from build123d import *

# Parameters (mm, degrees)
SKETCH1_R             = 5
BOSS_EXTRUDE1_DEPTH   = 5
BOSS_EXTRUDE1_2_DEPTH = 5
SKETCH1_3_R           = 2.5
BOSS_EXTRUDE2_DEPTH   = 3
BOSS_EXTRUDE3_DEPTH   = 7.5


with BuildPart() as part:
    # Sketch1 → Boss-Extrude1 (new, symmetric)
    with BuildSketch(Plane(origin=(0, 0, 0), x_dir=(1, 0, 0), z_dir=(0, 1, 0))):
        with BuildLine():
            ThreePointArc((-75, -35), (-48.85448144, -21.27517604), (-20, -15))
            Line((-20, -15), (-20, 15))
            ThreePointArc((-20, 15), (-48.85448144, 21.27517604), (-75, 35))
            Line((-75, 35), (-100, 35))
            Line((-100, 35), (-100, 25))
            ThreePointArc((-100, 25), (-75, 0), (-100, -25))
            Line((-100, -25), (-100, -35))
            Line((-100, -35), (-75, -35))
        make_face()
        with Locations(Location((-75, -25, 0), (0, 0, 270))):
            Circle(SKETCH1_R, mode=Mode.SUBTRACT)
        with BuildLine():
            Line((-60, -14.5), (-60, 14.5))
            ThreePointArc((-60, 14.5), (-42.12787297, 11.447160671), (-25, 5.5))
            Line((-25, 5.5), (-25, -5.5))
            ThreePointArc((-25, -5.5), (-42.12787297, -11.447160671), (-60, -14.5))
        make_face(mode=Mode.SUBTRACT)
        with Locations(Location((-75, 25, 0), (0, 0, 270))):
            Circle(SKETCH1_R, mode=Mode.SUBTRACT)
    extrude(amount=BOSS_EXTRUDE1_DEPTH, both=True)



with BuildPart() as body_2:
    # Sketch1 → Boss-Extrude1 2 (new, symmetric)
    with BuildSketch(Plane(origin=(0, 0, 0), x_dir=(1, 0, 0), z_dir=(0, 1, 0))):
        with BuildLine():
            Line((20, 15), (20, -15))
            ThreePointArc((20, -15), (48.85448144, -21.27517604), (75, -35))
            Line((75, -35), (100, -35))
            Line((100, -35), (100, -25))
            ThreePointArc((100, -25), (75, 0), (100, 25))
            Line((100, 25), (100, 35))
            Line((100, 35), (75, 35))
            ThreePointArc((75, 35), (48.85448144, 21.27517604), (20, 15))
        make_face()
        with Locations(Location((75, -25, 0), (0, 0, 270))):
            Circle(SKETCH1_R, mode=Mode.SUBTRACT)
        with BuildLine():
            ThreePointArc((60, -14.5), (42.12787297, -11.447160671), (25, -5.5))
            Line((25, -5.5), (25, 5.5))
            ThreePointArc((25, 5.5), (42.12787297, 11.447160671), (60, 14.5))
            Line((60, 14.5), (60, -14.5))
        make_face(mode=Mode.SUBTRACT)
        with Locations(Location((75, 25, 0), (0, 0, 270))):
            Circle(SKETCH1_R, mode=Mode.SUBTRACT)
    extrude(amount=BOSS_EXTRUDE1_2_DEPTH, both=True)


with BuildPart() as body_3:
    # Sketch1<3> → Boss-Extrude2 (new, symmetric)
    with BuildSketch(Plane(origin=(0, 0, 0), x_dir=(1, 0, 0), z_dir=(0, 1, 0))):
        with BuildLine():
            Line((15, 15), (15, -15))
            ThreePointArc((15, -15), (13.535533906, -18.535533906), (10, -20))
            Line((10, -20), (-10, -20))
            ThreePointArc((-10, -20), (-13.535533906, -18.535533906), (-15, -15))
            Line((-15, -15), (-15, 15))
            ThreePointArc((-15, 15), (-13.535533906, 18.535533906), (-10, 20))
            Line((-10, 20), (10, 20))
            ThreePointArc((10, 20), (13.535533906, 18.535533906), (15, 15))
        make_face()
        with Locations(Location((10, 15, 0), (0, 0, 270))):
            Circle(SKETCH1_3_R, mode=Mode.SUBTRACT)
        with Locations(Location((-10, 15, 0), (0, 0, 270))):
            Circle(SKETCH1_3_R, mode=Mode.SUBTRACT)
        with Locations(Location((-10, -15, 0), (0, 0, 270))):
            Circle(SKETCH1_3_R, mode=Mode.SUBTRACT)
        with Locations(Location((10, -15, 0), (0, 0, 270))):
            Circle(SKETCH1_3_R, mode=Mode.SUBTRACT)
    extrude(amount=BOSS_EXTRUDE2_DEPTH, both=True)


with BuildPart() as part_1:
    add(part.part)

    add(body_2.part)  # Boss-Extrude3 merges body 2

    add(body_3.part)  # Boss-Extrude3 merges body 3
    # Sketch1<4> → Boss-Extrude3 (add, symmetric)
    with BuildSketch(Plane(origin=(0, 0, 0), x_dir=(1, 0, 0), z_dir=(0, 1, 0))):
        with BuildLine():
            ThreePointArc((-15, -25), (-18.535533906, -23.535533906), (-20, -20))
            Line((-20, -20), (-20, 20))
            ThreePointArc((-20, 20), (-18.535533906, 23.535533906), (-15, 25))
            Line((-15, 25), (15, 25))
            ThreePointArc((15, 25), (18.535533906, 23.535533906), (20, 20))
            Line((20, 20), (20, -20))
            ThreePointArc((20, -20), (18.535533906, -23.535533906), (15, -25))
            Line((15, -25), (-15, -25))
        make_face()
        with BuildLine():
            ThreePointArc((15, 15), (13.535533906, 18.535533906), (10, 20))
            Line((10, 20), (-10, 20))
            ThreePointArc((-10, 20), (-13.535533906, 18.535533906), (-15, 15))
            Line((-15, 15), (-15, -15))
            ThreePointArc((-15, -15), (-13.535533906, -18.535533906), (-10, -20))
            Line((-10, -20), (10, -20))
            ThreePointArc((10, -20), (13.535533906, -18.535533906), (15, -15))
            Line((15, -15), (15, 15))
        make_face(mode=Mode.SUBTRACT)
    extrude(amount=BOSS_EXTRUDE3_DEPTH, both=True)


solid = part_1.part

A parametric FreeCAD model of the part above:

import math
import FreeCAD as App
import Part
import Sketcher
from FreeCAD import Vector

doc = App.newDocument("Part")
params = doc.addObject("Spreadsheet::Sheet", "Params")
for row, (alias, value) in enumerate([
    ("sketch1_diameter", "10 mm"),
    ("sketch1_radius", "110 mm"),
    ("sketch1_radius2", "25 mm"),
    ("sketch1_width", "25 mm"),
    ("sketch1_height", "30 mm"),
    ("pad1_length", "10 mm"),
    ("sketch2_diameter", "10 mm"),
    ("sketch2_radius", "110 mm"),
    ("sketch2_radius2", "25 mm"),
    ("sketch2_width", "25 mm"),
    ("sketch2_height", "30 mm"),
    ("pad2_length", "10 mm"),
    ("sketch3_diameter", "5 mm"),
    ("sketch3_radius", "5 mm"),
    ("sketch3_width", "20 mm"),
    ("sketch3_height", "30 mm"),
    ("pad3_length", "6 mm"),
    ("sketch4_radius", "5 mm"),
    ("sketch4_width", "30 mm"),
    ("pad4_length", "15 mm"),
], start=1):
    params.set(f"A{row}", alias)
    params.set(f"B{row}", "=" + value)
    params.setAlias(f"B{row}", alias)

body = doc.addObject("PartDesign::Body", "Body")

sketch1 = doc.addObject("Sketcher::SketchObject", "Sketch")
body.addObject(sketch1)
sketch1.AttachmentSupport = (doc.XZ_Plane, [""])
sketch1.MapMode = "FlatFace"
sketch1.addGeometry([
    Part.ArcOfCircle(Part.Circle(Vector(-11.262744, 124.652453, 0), Vector(0, 0, 1), 110), math.radians(-125.410433), math.radians(-94.55578)),
    Part.LineSegment(Vector(-20, 15, 0), Vector(-20, -15, 0)),
    Part.ArcOfCircle(Part.Circle(Vector(-11.262744, -124.652453, 0), Vector(0, 0, 1), 110), math.radians(94.55578), math.radians(125.410433)),
    Part.LineSegment(Vector(-75, -35, 0), Vector(-100, -35, 0)),
    Part.LineSegment(Vector(-100, -35, 0), Vector(-100, -25, 0)),
    Part.ArcOfCircle(Part.Circle(Vector(-100, 0, 0), Vector(0, 0, 1), 25), math.radians(-90), math.radians(90)),
    Part.LineSegment(Vector(-100, 25, 0), Vector(-100, 35, 0)),
    Part.LineSegment(Vector(-100, 35, 0), Vector(-75, 35, 0)),
    Part.Circle(Vector(-75, 25, 0), Vector(0, 0, 1), 5),
    Part.ArcOfCircle(Part.Circle(Vector(-69.522387, -95.087062, 0), Vector(0, 0, 1), 110), math.radians(66.124602), math.radians(85.033851)),
    Part.LineSegment(Vector(-60, 14.5, 0), Vector(-60, -14.5, 0)),
    Part.ArcOfCircle(Part.Circle(Vector(-69.522387, 95.087062, 0), Vector(0, 0, 1), 110), math.radians(-85.033851), math.radians(-66.124602)),
    Part.LineSegment(Vector(-25, -5.5, 0), Vector(-25, 5.5, 0)),
    Part.Circle(Vector(-75, -25, 0), Vector(0, 0, 1), 5),
], False)
sketch1.addConstraint([
    Sketcher.Constraint("Coincident", 0, 2, 1, 1),
    Sketcher.Constraint("Coincident", 1, 2, 2, 1),
    Sketcher.Constraint("Coincident", 2, 2, 3, 1),
    Sketcher.Constraint("Coincident", 3, 2, 4, 1),
    Sketcher.Constraint("Coincident", 4, 2, 5, 1),
    Sketcher.Constraint("Coincident", 5, 2, 6, 1),
    Sketcher.Constraint("Coincident", 6, 2, 7, 1),
    Sketcher.Constraint("Coincident", 7, 2, 0, 1),
    Sketcher.Constraint("Coincident", 9, 2, 10, 1),
    Sketcher.Constraint("Coincident", 10, 2, 11, 1),
    Sketcher.Constraint("Coincident", 11, 2, 12, 1),
    Sketcher.Constraint("Coincident", 12, 2, 9, 1),
    Sketcher.Constraint("Vertical", 1),
    Sketcher.Constraint("Horizontal", 3),
    Sketcher.Constraint("Vertical", 4),
    Sketcher.Constraint("Vertical", 6),
    Sketcher.Constraint("Horizontal", 7),
    Sketcher.Constraint("Vertical", 10),
    Sketcher.Constraint("Vertical", 12),
    Sketcher.Constraint("Equal", 0, 2),
    Sketcher.Constraint("Equal", 2, 9),
    Sketcher.Constraint("Equal", 9, 11),
    Sketcher.Constraint("Equal", 8, 13),
    Sketcher.Constraint("Symmetric", 0, 3, 2, 3, -1),
    Sketcher.Constraint("Symmetric", 9, 3, 11, 3, -1),
    Sketcher.Constraint("Symmetric", 8, 3, 13, 3, -1),
    Sketcher.Constraint("Symmetric", 4, 2, 5, 2, -1),
    Sketcher.Constraint("Horizontal", 13, 3, 4, 2),
    Sketcher.Constraint("Vertical", 13, 3, 2, 2),
    Sketcher.Constraint("Vertical", 5, 3, 3, 2),
    Sketcher.Constraint("Vertical", 2, 2, 7, 2),
    Sketcher.Constraint("Diameter", 8, 10.0),
    Sketcher.Constraint("Radius", 0, 110.0),
    Sketcher.Constraint("Radius", 5, 25.0),
    Sketcher.Constraint("DistanceX", 3, 2, 3, 1, 25.0),
    Sketcher.Constraint("DistanceY", 1, 2, 1, 1, 30.0),
    Sketcher.Constraint("DistanceY", 4, 1, 4, 2, 10.0),
    Sketcher.Constraint("DistanceY", 10, 2, 10, 1, 29.0),
    Sketcher.Constraint("DistanceY", 12, 1, 12, 2, 11.0),
    Sketcher.Constraint("DistanceX", 5, 3, -1, 1, 100.0),
    Sketcher.Constraint("DistanceX", 0, 2, -1, 1, 20.0),
    Sketcher.Constraint("DistanceX", 9, 2, -1, 1, 60.0),
    Sketcher.Constraint("DistanceX", 11, 2, -1, 1, 25.0),
])
sketch1.setExpression("Constraints[31]", "Params.sketch1_diameter")
sketch1.setExpression("Constraints[32]", "Params.sketch1_radius")
sketch1.setExpression("Constraints[33]", "Params.sketch1_radius2")
sketch1.setExpression("Constraints[34]", "Params.sketch1_width")
sketch1.setExpression("Constraints[35]", "Params.sketch1_height")
pad1 = doc.addObject("PartDesign::Pad", "Pad")
body.addObject(pad1)
pad1.Profile = sketch1
pad1.setExpression("Length", "Params.pad1_length")
pad1.Midplane = True
body2 = doc.addObject("PartDesign::Body", "Body001")

sketch2 = doc.addObject("Sketcher::SketchObject", "Sketch001")
body2.addObject(sketch2)
sketch2.AttachmentSupport = (doc.getObject("XZ_Plane001"), [""])
sketch2.MapMode = "FlatFace"
sketch2.addGeometry([
    Part.LineSegment(Vector(20, -15, 0), Vector(20, 15, 0)),
    Part.ArcOfCircle(Part.Circle(Vector(11.262744, 124.652453, 0), Vector(0, 0, 1), 110), math.radians(-85.44422), math.radians(-54.589567)),
    Part.LineSegment(Vector(75, 35, 0), Vector(100, 35, 0)),
    Part.LineSegment(Vector(100, 35, 0), Vector(100, 25, 0)),
    Part.ArcOfCircle(Part.Circle(Vector(100, 0, 0), Vector(0, 0, 1), 25), math.radians(90), math.radians(270)),
    Part.LineSegment(Vector(100, -25, 0), Vector(100, -35, 0)),
    Part.LineSegment(Vector(100, -35, 0), Vector(75, -35, 0)),
    Part.ArcOfCircle(Part.Circle(Vector(11.262744, -124.652453, 0), Vector(0, 0, 1), 110), math.radians(54.589567), math.radians(85.44422)),
    Part.Circle(Vector(75, 25, 0), Vector(0, 0, 1), 5),
    Part.LineSegment(Vector(60, -14.5, 0), Vector(60, 14.5, 0)),
    Part.ArcOfCircle(Part.Circle(Vector(69.522387, -95.087062, 0), Vector(0, 0, 1), 110), math.radians(94.966149), math.radians(113.875398)),
    Part.LineSegment(Vector(25, 5.5, 0), Vector(25, -5.5, 0)),
    Part.ArcOfCircle(Part.Circle(Vector(69.522387, 95.087062, 0), Vector(0, 0, 1), 110), math.radians(-113.875398), math.radians(-94.966149)),
    Part.Circle(Vector(75, -25, 0), Vector(0, 0, 1), 5),
], False)
sketch2.addConstraint([
    Sketcher.Constraint("Coincident", 0, 2, 1, 1),
    Sketcher.Constraint("Coincident", 1, 2, 2, 1),
    Sketcher.Constraint("Coincident", 2, 2, 3, 1),
    Sketcher.Constraint("Coincident", 3, 2, 4, 1),
    Sketcher.Constraint("Coincident", 4, 2, 5, 1),
    Sketcher.Constraint("Coincident", 5, 2, 6, 1),
    Sketcher.Constraint("Coincident", 6, 2, 7, 1),
    Sketcher.Constraint("Coincident", 7, 2, 0, 1),
    Sketcher.Constraint("Coincident", 9, 2, 10, 1),
    Sketcher.Constraint("Coincident", 10, 2, 11, 1),
    Sketcher.Constraint("Coincident", 11, 2, 12, 1),
    Sketcher.Constraint("Coincident", 12, 2, 9, 1),
    Sketcher.Constraint("Vertical", 0),
    Sketcher.Constraint("Horizontal", 2),
    Sketcher.Constraint("Vertical", 3),
    Sketcher.Constraint("Vertical", 5),
    Sketcher.Constraint("Horizontal", 6),
    Sketcher.Constraint("Vertical", 9),
    Sketcher.Constraint("Vertical", 11),
    Sketcher.Constraint("Equal", 1, 7),
    Sketcher.Constraint("Equal", 7, 10),
    Sketcher.Constraint("Equal", 10, 12),
    Sketcher.Constraint("Equal", 8, 13),
    Sketcher.Constraint("Symmetric", 1, 3, 7, 3, -1),
    Sketcher.Constraint("Symmetric", 10, 3, 12, 3, -1),
    Sketcher.Constraint("Symmetric", 8, 3, 13, 3, -1),
    Sketcher.Constraint("Symmetric", 3, 2, 4, 2, -1),
    Sketcher.Constraint("Horizontal", 8, 3, 3, 2),
    Sketcher.Constraint("Vertical", 13, 3, 1, 2),
    Sketcher.Constraint("Vertical", 4, 3, 2, 2),
    Sketcher.Constraint("Vertical", 1, 2, 6, 2),
    Sketcher.Constraint("Diameter", 8, 10.0),
    Sketcher.Constraint("Radius", 1, 110.0),
    Sketcher.Constraint("Radius", 4, 25.0),
    Sketcher.Constraint("DistanceX", 2, 1, 2, 2, 25.0),
    Sketcher.Constraint("DistanceY", 0, 1, 0, 2, 30.0),
    Sketcher.Constraint("DistanceY", 3, 2, 3, 1, 10.0),
    Sketcher.Constraint("DistanceY", 9, 1, 9, 2, 29.0),
    Sketcher.Constraint("DistanceY", 11, 2, 11, 1, 11.0),
    Sketcher.Constraint("DistanceX", -1, 1, 4, 3, 100.0),
    Sketcher.Constraint("DistanceX", -1, 1, 0, 2, 20.0),
    Sketcher.Constraint("DistanceX", -1, 1, 9, 2, 60.0),
    Sketcher.Constraint("DistanceX", -1, 1, 10, 2, 25.0),
])
sketch2.setExpression("Constraints[31]", "Params.sketch2_diameter")
sketch2.setExpression("Constraints[32]", "Params.sketch2_radius")
sketch2.setExpression("Constraints[33]", "Params.sketch2_radius2")
sketch2.setExpression("Constraints[34]", "Params.sketch2_width")
sketch2.setExpression("Constraints[35]", "Params.sketch2_height")
pad2 = doc.addObject("PartDesign::Pad", "Pad001")
body2.addObject(pad2)
pad2.Profile = sketch2
pad2.setExpression("Length", "Params.pad2_length")
pad2.Midplane = True
body3 = doc.addObject("PartDesign::Body", "Body002")

sketch3 = doc.addObject("Sketcher::SketchObject", "Sketch002")
body3.addObject(sketch3)
sketch3.AttachmentSupport = (doc.getObject("XZ_Plane002"), [""])
sketch3.MapMode = "FlatFace"
sketch3.addGeometry([
    Part.LineSegment(Vector(15, 15, 0), Vector(15, -15, 0)),
    Part.ArcOfCircle(Part.Circle(Vector(10, -15, 0), Vector(0, 0, 1), 5), math.radians(-90), math.radians(0)),
    Part.LineSegment(Vector(10, -20, 0), Vector(-10, -20, 0)),
    Part.ArcOfCircle(Part.Circle(Vector(-10, -15, 0), Vector(0, 0, 1), 5), math.radians(180), math.radians(270)),
    Part.LineSegment(Vector(-15, -15, 0), Vector(-15, 15, 0)),
    Part.ArcOfCircle(Part.Circle(Vector(-10, 15, 0), Vector(0, 0, 1), 5), math.radians(90), math.radians(180)),
    Part.LineSegment(Vector(-10, 20, 0), Vector(10, 20, 0)),
    Part.ArcOfCircle(Part.Circle(Vector(10, 15, 0), Vector(0, 0, 1), 5), math.radians(0), math.radians(90)),
    Part.Circle(Vector(10, 15, 0), Vector(0, 0, 1), 2.5),
    Part.Circle(Vector(-10, 15, 0), Vector(0, 0, 1), 2.5),
    Part.Circle(Vector(10, -15, 0), Vector(0, 0, 1), 2.5),
    Part.Circle(Vector(-10, -15, 0), Vector(0, 0, 1), 2.5),
], False)
sketch3.addConstraint([
    Sketcher.Constraint("Tangent", 0, 2, 1, 2),
    Sketcher.Constraint("Tangent", 1, 1, 2, 1),
    Sketcher.Constraint("Tangent", 2, 2, 3, 2),
    Sketcher.Constraint("Tangent", 3, 1, 4, 1),
    Sketcher.Constraint("Tangent", 4, 2, 5, 2),
    Sketcher.Constraint("Tangent", 5, 1, 6, 1),
    Sketcher.Constraint("Tangent", 6, 2, 7, 2),
    Sketcher.Constraint("Tangent", 7, 1, 0, 1),
    Sketcher.Constraint("Vertical", 0),
    Sketcher.Constraint("Horizontal", 2),
    Sketcher.Constraint("Vertical", 4),
    Sketcher.Constraint("Horizontal", 6),
    Sketcher.Constraint("Coincident", 8, 3, 7, 3),
    Sketcher.Constraint("Coincident", 9, 3, 5, 3),
    Sketcher.Constraint("Coincident", 10, 3, 1, 3),
    Sketcher.Constraint("Coincident", 11, 3, 3, 3),
    Sketcher.Constraint("Equal", 1, 3),
    Sketcher.Constraint("Equal", 3, 5),
    Sketcher.Constraint("Equal", 5, 7),
    Sketcher.Constraint("Equal", 8, 9),
    Sketcher.Constraint("Equal", 9, 10),
    Sketcher.Constraint("Equal", 10, 11),
    Sketcher.Constraint("Symmetric", 1, 3, 5, 3, -1, 1),
    Sketcher.Constraint("Diameter", 8, 5.0),
    Sketcher.Constraint("Radius", 1, 5.0),
    Sketcher.Constraint("DistanceX", 2, 2, 2, 1, 20.0),
    Sketcher.Constraint("DistanceY", 0, 2, 0, 1, 30.0),
])
sketch3.setExpression("Constraints[23]", "Params.sketch3_diameter")
sketch3.setExpression("Constraints[24]", "Params.sketch3_radius")
sketch3.setExpression("Constraints[25]", "Params.sketch3_width")
sketch3.setExpression("Constraints[26]", "Params.sketch3_height")
pad3 = doc.addObject("PartDesign::Pad", "Pad002")
body3.addObject(pad3)
pad3.Profile = sketch3
pad3.setExpression("Length", "Params.pad3_length")
pad3.Midplane = True
body.AllowCompound = True
doc.recompute()

boolean = doc.addObject("PartDesign::Boolean", "Boolean")
body.addObject(boolean)
boolean.Type = "Fuse"
boolean.addObjects([body2])
doc.recompute()

boolean2 = doc.addObject("PartDesign::Boolean", "Boolean001")
body.addObject(boolean2)
boolean2.Type = "Fuse"
boolean2.addObjects([body3])

sketch4 = doc.addObject("Sketcher::SketchObject", "Sketch003")
body.addObject(sketch4)
sketch4.AttachmentSupport = (doc.XZ_Plane, [""])
sketch4.MapMode = "FlatFace"
sketch4.addGeometry([
    Part.ArcOfCircle(Part.Circle(Vector(-15, 20, 0), Vector(0, 0, 1), 5), math.radians(90), math.radians(180)),
    Part.LineSegment(Vector(-15, 25, 0), Vector(15, 25, 0)),
    Part.ArcOfCircle(Part.Circle(Vector(15, 20, 0), Vector(0, 0, 1), 5), math.radians(0), math.radians(90)),
    Part.LineSegment(Vector(20, 20, 0), Vector(20, -20, 0)),
    Part.ArcOfCircle(Part.Circle(Vector(15, -20, 0), Vector(0, 0, 1), 5), math.radians(-90), math.radians(0)),
    Part.LineSegment(Vector(15, -25, 0), Vector(-15, -25, 0)),
    Part.ArcOfCircle(Part.Circle(Vector(-15, -20, 0), Vector(0, 0, 1), 5), math.radians(180), math.radians(270)),
    Part.LineSegment(Vector(-20, -20, 0), Vector(-20, 20, 0)),
    Part.LineSegment(Vector(15, -15, 0), Vector(15, 15, 0)),
    Part.ArcOfCircle(Part.Circle(Vector(10, 15, 0), Vector(0, 0, 1), 5), math.radians(0), math.radians(90)),
    Part.LineSegment(Vector(10, 20, 0), Vector(-10, 20, 0)),
    Part.ArcOfCircle(Part.Circle(Vector(-10, 15, 0), Vector(0, 0, 1), 5), math.radians(90), math.radians(180)),
    Part.LineSegment(Vector(-15, 15, 0), Vector(-15, -15, 0)),
    Part.ArcOfCircle(Part.Circle(Vector(-10, -15, 0), Vector(0, 0, 1), 5), math.radians(180), math.radians(270)),
    Part.LineSegment(Vector(-10, -20, 0), Vector(10, -20, 0)),
    Part.ArcOfCircle(Part.Circle(Vector(10, -15, 0), Vector(0, 0, 1), 5), math.radians(-90), math.radians(0)),
], False)
sketch4.addConstraint([
    Sketcher.Constraint("Tangent", 0, 1, 1, 1),
    Sketcher.Constraint("Tangent", 1, 2, 2, 2),
    Sketcher.Constraint("Tangent", 2, 1, 3, 1),
    Sketcher.Constraint("Tangent", 3, 2, 4, 2),
    Sketcher.Constraint("Tangent", 4, 1, 5, 1),
    Sketcher.Constraint("Tangent", 5, 2, 6, 2),
    Sketcher.Constraint("Tangent", 6, 1, 7, 1),
    Sketcher.Constraint("Tangent", 7, 2, 0, 2),
    Sketcher.Constraint("Tangent", 8, 2, 9, 1),
    Sketcher.Constraint("Tangent", 9, 2, 10, 1),
    Sketcher.Constraint("Tangent", 10, 2, 11, 1),
    Sketcher.Constraint("Tangent", 11, 2, 12, 1),
    Sketcher.Constraint("Tangent", 12, 2, 13, 1),
    Sketcher.Constraint("Tangent", 13, 2, 14, 1),
    Sketcher.Constraint("Tangent", 14, 2, 15, 1),
    Sketcher.Constraint("Tangent", 15, 2, 8, 1),
    Sketcher.Constraint("Horizontal", 1),
    Sketcher.Constraint("Vertical", 3),
    Sketcher.Constraint("Horizontal", 5),
    Sketcher.Constraint("Vertical", 7),
    Sketcher.Constraint("Vertical", 8),
    Sketcher.Constraint("Horizontal", 10),
    Sketcher.Constraint("Vertical", 12),
    Sketcher.Constraint("Horizontal", 14),
    Sketcher.Constraint("Equal", 0, 2),
    Sketcher.Constraint("Equal", 2, 4),
    Sketcher.Constraint("Equal", 4, 6),
    Sketcher.Constraint("Equal", 6, 9),
    Sketcher.Constraint("Equal", 9, 11),
    Sketcher.Constraint("Equal", 11, 13),
    Sketcher.Constraint("Equal", 13, 15),
    Sketcher.Constraint("Symmetric", 0, 3, 4, 3, -1, 1),
    Sketcher.Constraint("Symmetric", 9, 3, 13, 3, -1, 1),
    Sketcher.Constraint("Horizontal", 7, 2, 9, 2),
    Sketcher.Constraint("Vertical", 4, 1, 8, 2),
    Sketcher.Constraint("Equal", 5, 8),
    Sketcher.Constraint("Radius", 0, 5.0),
    Sketcher.Constraint("DistanceX", 1, 1, 1, 2, 30.0),
])
sketch4.setExpression("Constraints[36]", "Params.sketch4_radius")
sketch4.setExpression("Constraints[37]", "Params.sketch4_width")
pad4 = doc.addObject("PartDesign::Pad", "Pad003")
body.addObject(pad4)
pad4.Profile = sketch4
pad4.setExpression("Length", "Params.pad4_length")
pad4.Midplane = True

doc.recompute()
